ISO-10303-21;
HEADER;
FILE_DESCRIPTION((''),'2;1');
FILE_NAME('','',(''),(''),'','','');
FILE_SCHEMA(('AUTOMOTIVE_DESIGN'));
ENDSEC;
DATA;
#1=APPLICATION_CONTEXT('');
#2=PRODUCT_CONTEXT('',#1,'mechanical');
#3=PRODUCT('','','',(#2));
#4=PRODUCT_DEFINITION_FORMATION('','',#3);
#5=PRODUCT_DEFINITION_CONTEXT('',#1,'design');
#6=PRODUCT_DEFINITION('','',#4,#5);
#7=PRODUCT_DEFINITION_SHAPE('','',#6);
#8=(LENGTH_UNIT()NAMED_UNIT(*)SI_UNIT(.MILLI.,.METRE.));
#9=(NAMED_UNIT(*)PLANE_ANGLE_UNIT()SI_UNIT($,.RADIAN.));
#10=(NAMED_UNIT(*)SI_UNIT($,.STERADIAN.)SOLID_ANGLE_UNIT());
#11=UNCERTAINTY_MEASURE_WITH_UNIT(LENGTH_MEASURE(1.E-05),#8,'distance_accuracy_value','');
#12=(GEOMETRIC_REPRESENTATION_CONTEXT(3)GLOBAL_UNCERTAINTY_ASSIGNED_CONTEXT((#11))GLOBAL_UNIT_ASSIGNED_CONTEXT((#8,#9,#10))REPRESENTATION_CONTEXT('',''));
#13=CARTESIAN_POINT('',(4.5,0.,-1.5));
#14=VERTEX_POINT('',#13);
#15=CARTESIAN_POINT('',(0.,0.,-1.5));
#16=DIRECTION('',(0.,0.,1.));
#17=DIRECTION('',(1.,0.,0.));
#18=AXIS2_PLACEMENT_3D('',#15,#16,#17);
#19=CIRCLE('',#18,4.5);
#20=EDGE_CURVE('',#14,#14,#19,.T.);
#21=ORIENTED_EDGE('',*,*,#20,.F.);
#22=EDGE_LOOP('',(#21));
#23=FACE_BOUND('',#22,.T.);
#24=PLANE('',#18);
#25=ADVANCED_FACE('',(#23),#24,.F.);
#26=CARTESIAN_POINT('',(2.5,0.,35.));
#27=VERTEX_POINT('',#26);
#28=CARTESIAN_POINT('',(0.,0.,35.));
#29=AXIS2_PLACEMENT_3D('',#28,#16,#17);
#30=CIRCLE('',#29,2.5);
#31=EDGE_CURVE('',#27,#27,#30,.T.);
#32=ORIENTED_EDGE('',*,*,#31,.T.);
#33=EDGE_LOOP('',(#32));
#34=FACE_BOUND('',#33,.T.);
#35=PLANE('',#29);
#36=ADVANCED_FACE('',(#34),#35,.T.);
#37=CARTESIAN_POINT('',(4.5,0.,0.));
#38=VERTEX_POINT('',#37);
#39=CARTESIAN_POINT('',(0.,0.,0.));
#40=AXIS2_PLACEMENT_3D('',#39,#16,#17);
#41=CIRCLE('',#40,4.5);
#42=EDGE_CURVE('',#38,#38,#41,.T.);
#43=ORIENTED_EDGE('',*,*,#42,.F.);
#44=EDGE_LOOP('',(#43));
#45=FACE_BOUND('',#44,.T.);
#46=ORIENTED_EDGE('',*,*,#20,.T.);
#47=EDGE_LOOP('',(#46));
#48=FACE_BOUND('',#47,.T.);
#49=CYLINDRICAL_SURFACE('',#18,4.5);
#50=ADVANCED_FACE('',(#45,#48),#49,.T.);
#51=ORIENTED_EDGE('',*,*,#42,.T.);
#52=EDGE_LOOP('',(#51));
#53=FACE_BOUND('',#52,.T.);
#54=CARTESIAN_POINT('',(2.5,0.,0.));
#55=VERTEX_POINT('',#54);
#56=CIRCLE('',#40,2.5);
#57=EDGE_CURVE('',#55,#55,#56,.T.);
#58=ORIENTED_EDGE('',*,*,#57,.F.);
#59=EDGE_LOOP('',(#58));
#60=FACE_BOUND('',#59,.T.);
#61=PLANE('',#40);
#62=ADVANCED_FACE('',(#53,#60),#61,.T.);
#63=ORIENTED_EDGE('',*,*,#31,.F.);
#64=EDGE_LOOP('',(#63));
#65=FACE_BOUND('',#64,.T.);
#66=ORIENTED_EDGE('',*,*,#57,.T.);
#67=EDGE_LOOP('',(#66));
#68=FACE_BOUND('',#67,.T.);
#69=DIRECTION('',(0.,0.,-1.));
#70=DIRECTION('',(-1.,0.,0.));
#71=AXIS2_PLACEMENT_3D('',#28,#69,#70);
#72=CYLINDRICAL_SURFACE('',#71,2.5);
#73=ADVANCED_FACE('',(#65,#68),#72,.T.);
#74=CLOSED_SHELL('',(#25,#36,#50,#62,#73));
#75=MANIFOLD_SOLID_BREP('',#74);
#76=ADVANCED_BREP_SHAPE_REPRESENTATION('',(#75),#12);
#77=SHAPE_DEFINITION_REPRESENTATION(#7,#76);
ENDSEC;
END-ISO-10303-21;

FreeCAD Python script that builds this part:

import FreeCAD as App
import Part
import Sketcher

V = App.Vector
Q = App.Units.Quantity

doc = App.newDocument("Part")
body = doc.addObject("PartDesign::Body", "Body")

sketch1 = body.newObject("Sketcher::SketchObject", "Sketch")
sketch1.AttachmentSupport = (doc.getObject("XY_Plane"), [""])
sketch1.MapMode = "FlatFace"
sketch1.addGeometry(Part.Circle(V(0, 0, 0), V(0, 0, 1), 4.5), False)
sketch1.addConstraint([
    Sketcher.Constraint("Coincident", 0, 3, -1, 1),
    Sketcher.Constraint("Diameter", 0, Q("9 mm")),
])
pad1 = body.newObject("PartDesign::Pad", "Pad")
pad1.Profile = sketch1
pad1.Length = 1.5
pad1.Reversed = True

sketch2 = body.newObject("Sketcher::SketchObject", "Sketch001")
sketch2.AttachmentSupport = (doc.getObject("XY_Plane"), [""])
sketch2.MapMode = "FlatFace"
sketch2.addGeometry(Part.Circle(V(0, 0, 0), V(0, 0, 1), 2.5), False)
sketch2.addConstraint([
    Sketcher.Constraint("Coincident", 0, 3, -1, 1),
    Sketcher.Constraint("Diameter", 0, Q("5 mm")),
])
pad2 = body.newObject("PartDesign::Pad", "Pad001")
pad2.Profile = sketch2
pad2.Length = 35

doc.recompute()
